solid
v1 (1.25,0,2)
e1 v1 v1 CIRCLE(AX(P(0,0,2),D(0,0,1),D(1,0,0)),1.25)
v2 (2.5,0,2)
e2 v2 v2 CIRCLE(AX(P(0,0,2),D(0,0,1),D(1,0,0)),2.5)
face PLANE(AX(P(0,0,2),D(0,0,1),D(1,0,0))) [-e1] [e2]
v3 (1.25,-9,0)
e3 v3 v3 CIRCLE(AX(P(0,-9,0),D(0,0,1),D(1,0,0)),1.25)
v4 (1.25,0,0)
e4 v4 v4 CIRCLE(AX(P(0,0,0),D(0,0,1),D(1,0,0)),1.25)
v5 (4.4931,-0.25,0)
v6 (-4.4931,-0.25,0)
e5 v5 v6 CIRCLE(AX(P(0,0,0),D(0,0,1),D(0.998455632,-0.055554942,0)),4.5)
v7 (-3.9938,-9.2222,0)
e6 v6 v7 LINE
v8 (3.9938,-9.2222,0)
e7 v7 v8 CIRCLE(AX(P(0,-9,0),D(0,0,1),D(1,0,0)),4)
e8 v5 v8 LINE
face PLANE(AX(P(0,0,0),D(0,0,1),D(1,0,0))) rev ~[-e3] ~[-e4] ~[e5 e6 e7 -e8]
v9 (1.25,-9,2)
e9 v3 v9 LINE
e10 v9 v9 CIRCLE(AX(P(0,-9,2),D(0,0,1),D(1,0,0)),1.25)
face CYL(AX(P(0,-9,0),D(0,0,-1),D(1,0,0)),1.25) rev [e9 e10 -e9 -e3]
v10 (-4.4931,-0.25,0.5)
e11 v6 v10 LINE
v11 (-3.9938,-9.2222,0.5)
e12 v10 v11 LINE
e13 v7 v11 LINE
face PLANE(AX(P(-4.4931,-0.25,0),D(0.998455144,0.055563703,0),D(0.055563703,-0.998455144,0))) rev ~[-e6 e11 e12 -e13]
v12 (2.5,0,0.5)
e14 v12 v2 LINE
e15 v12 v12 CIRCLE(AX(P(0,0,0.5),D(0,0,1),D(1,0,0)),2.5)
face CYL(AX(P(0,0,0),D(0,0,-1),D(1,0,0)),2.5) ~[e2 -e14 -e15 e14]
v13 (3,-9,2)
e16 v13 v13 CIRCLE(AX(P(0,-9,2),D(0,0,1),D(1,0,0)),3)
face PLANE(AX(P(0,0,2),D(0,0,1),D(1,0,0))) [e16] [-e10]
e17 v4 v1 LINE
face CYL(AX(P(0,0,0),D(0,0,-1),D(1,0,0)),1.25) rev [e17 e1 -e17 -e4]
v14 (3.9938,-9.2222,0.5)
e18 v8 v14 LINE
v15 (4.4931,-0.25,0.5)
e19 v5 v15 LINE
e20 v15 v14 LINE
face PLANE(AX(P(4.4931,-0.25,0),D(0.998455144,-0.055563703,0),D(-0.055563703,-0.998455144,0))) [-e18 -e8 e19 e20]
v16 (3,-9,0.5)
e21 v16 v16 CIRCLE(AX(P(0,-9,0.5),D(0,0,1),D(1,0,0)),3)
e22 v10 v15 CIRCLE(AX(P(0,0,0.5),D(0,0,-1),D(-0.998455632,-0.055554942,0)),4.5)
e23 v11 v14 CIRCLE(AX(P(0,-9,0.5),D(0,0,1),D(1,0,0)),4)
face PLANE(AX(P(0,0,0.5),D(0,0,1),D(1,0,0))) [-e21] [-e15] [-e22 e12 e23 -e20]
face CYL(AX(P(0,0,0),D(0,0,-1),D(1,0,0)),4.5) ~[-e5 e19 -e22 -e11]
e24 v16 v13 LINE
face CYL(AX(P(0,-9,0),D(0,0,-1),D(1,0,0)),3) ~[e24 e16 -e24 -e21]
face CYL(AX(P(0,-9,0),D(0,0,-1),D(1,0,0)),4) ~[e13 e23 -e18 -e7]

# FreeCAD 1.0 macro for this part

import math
import FreeCAD as App
import Part
import Sketcher
Q = App.Units.Quantity

doc = App.newDocument("Part")
params = doc.addObject("Spreadsheet::Sheet", "Params")
for row, (alias, value) in enumerate([
    ("sketch1_diameter", "5 mm"),
    ("sketch1_diameter2", "6 mm"),
    ("sketch1_radius", "4 mm"),
    ("sketch1_radius2", "4.5 mm"),
    ("pad1_length", "0.5 mm"),
    ("sketch2_diameter", "5 mm"),
    ("sketch2_diameter2", "6 mm"),
    ("sketch2_diameter3", "2.5 mm"),
    ("pad2_length", "2 mm"),
], start=1):
    params.set(f"A{row}", alias)
    params.set(f"B{row}", "=" + value)
    params.setAlias(f"B{row}", alias)

body = doc.addObject("PartDesign::Body", "Body")

# Sketch on XY plane
sketch1 = doc.addObject("Sketcher::SketchObject", "Sketch")
body.addObject(sketch1)
sketch1.AttachmentSupport = (doc.XY_Plane, [""])
sketch1.MapMode = "FlatFace"
sketch1.addGeometry(Part.ArcOfCircle(Part.Circle(App.Vector(0, 0, 0), App.Vector(0, 0, 1), 4.5), math.radians(-3), math.radians(183)), False)
sketch1.addGeometry(Part.LineSegment(App.Vector(-4.5, -0.2, 0), App.Vector(-4, -9.2, 0)), False)
sketch1.addGeometry(Part.ArcOfCircle(Part.Circle(App.Vector(0, -9, 0), App.Vector(0, 0, 1), 4), math.radians(-177), math.radians(-3)), False)
sketch1.addGeometry(Part.LineSegment(App.Vector(4, -9.2, 0), App.Vector(4.5, -0.2, 0)), False)
sketch1.addGeometry(Part.Circle(App.Vector(0, 0, 0), App.Vector(0, 0, 1), 2.5), False)
sketch1.addGeometry(Part.Circle(App.Vector(0, -9, 0), App.Vector(0, 0, 1), 3), False)
sketch1.addConstraint(Sketcher.Constraint("Tangent", 0, 2, 1, 1))
sketch1.addConstraint(Sketcher.Constraint("Tangent", 1, 2, 2, 1))
sketch1.addConstraint(Sketcher.Constraint("Tangent", 2, 2, 3, 1))
sketch1.addConstraint(Sketcher.Constraint("Tangent", 3, 2, 0, 1))
sketch1.addConstraint(Sketcher.Constraint("Coincident", 0, 3, -1, 1))
sketch1.addConstraint(Sketcher.Constraint("Coincident", 4, 3, -1, 1))
sketch1.addConstraint(Sketcher.Constraint("Coincident", 5, 3, 2, 3))
sketch1.addConstraint(Sketcher.Constraint("PointOnObject", 2, 3, -2))
sketch1.addConstraint(Sketcher.Constraint("Diameter", 4, Q("5 mm")))
sketch1.addConstraint(Sketcher.Constraint("Diameter", 5, Q("6 mm")))
sketch1.addConstraint(Sketcher.Constraint("Radius", 2, Q("4 mm")))
sketch1.addConstraint(Sketcher.Constraint("Radius", 0, Q("4.5 mm")))
sketch1.addConstraint(Sketcher.Constraint("DistanceY", 2, 3, -1, 1, Q("9 mm")))
sketch1.setExpression("Constraints[8]", "Params.sketch1_diameter")
sketch1.setExpression("Constraints[9]", "Params.sketch1_diameter2")
sketch1.setExpression("Constraints[10]", "Params.sketch1_radius")
sketch1.setExpression("Constraints[11]", "Params.sketch1_radius2")
pad1 = doc.addObject("PartDesign::Pad", "Pad")
body.addObject(pad1)
pad1.Profile = sketch1
pad1.setExpression("Length", "Params.pad1_length")

# Sketch on XY plane
sketch2 = doc.addObject("Sketcher::SketchObject", "Sketch001")
body.addObject(sketch2)
sketch2.AttachmentSupport = (doc.XY_Plane, [""])
sketch2.MapMode = "FlatFace"
sketch2.addGeometry(Part.Circle(App.Vector(0, 0, 0), App.Vector(0, 0, 1), 2.5), False)
sketch2.addGeometry(Part.Circle(App.Vector(0, 0, 0), App.Vector(0, 0, 1), 1.2), False)
sketch2.addGeometry(Part.Circle(App.Vector(0, -9, 0), App.Vector(0, 0, 1), 3), False)
sketch2.addGeometry(Part.Circle(App.Vector(0, -9, 0), App.Vector(0, 0, 1), 1.2), False)
sketch2.addConstraint(Sketcher.Constraint("Coincident", 0, 3, -1, 1))
sketch2.addConstraint(Sketcher.Constraint("Coincident", 1, 3, -1, 1))
sketch2.addConstraint(Sketcher.Constraint("Coincident", 3, 3, 2, 3))
sketch2.addConstraint(Sketcher.Constraint("Equal", 1, 3))
sketch2.addConstraint(Sketcher.Constraint("PointOnObject", 2, 3, -2))
sketch2.addConstraint(Sketcher.Constraint("Diameter", 0, Q("5 mm")))
sketch2.addConstraint(Sketcher.Constraint("Diameter", 2, Q("6 mm")))
sketch2.addConstraint(Sketcher.Constraint("Diameter", 1, Q("2.5 mm")))
sketch2.addConstraint(Sketcher.Constraint("DistanceY", 2, 3, -1, 1, Q("9 mm")))
sketch2.setExpression("Constraints[5]", "Params.sketch2_diameter")
sketch2.setExpression("Constraints[6]", "Params.sketch2_diameter2")
sketch2.setExpression("Constraints[7]", "Params.sketch2_diameter3")
pad2 = doc.addObject("PartDesign::Pad", "Pad001")
body.addObject(pad2)
pad2.Profile = sketch2
pad2.setExpression("Length", "Params.pad2_length")

doc.recompute()
